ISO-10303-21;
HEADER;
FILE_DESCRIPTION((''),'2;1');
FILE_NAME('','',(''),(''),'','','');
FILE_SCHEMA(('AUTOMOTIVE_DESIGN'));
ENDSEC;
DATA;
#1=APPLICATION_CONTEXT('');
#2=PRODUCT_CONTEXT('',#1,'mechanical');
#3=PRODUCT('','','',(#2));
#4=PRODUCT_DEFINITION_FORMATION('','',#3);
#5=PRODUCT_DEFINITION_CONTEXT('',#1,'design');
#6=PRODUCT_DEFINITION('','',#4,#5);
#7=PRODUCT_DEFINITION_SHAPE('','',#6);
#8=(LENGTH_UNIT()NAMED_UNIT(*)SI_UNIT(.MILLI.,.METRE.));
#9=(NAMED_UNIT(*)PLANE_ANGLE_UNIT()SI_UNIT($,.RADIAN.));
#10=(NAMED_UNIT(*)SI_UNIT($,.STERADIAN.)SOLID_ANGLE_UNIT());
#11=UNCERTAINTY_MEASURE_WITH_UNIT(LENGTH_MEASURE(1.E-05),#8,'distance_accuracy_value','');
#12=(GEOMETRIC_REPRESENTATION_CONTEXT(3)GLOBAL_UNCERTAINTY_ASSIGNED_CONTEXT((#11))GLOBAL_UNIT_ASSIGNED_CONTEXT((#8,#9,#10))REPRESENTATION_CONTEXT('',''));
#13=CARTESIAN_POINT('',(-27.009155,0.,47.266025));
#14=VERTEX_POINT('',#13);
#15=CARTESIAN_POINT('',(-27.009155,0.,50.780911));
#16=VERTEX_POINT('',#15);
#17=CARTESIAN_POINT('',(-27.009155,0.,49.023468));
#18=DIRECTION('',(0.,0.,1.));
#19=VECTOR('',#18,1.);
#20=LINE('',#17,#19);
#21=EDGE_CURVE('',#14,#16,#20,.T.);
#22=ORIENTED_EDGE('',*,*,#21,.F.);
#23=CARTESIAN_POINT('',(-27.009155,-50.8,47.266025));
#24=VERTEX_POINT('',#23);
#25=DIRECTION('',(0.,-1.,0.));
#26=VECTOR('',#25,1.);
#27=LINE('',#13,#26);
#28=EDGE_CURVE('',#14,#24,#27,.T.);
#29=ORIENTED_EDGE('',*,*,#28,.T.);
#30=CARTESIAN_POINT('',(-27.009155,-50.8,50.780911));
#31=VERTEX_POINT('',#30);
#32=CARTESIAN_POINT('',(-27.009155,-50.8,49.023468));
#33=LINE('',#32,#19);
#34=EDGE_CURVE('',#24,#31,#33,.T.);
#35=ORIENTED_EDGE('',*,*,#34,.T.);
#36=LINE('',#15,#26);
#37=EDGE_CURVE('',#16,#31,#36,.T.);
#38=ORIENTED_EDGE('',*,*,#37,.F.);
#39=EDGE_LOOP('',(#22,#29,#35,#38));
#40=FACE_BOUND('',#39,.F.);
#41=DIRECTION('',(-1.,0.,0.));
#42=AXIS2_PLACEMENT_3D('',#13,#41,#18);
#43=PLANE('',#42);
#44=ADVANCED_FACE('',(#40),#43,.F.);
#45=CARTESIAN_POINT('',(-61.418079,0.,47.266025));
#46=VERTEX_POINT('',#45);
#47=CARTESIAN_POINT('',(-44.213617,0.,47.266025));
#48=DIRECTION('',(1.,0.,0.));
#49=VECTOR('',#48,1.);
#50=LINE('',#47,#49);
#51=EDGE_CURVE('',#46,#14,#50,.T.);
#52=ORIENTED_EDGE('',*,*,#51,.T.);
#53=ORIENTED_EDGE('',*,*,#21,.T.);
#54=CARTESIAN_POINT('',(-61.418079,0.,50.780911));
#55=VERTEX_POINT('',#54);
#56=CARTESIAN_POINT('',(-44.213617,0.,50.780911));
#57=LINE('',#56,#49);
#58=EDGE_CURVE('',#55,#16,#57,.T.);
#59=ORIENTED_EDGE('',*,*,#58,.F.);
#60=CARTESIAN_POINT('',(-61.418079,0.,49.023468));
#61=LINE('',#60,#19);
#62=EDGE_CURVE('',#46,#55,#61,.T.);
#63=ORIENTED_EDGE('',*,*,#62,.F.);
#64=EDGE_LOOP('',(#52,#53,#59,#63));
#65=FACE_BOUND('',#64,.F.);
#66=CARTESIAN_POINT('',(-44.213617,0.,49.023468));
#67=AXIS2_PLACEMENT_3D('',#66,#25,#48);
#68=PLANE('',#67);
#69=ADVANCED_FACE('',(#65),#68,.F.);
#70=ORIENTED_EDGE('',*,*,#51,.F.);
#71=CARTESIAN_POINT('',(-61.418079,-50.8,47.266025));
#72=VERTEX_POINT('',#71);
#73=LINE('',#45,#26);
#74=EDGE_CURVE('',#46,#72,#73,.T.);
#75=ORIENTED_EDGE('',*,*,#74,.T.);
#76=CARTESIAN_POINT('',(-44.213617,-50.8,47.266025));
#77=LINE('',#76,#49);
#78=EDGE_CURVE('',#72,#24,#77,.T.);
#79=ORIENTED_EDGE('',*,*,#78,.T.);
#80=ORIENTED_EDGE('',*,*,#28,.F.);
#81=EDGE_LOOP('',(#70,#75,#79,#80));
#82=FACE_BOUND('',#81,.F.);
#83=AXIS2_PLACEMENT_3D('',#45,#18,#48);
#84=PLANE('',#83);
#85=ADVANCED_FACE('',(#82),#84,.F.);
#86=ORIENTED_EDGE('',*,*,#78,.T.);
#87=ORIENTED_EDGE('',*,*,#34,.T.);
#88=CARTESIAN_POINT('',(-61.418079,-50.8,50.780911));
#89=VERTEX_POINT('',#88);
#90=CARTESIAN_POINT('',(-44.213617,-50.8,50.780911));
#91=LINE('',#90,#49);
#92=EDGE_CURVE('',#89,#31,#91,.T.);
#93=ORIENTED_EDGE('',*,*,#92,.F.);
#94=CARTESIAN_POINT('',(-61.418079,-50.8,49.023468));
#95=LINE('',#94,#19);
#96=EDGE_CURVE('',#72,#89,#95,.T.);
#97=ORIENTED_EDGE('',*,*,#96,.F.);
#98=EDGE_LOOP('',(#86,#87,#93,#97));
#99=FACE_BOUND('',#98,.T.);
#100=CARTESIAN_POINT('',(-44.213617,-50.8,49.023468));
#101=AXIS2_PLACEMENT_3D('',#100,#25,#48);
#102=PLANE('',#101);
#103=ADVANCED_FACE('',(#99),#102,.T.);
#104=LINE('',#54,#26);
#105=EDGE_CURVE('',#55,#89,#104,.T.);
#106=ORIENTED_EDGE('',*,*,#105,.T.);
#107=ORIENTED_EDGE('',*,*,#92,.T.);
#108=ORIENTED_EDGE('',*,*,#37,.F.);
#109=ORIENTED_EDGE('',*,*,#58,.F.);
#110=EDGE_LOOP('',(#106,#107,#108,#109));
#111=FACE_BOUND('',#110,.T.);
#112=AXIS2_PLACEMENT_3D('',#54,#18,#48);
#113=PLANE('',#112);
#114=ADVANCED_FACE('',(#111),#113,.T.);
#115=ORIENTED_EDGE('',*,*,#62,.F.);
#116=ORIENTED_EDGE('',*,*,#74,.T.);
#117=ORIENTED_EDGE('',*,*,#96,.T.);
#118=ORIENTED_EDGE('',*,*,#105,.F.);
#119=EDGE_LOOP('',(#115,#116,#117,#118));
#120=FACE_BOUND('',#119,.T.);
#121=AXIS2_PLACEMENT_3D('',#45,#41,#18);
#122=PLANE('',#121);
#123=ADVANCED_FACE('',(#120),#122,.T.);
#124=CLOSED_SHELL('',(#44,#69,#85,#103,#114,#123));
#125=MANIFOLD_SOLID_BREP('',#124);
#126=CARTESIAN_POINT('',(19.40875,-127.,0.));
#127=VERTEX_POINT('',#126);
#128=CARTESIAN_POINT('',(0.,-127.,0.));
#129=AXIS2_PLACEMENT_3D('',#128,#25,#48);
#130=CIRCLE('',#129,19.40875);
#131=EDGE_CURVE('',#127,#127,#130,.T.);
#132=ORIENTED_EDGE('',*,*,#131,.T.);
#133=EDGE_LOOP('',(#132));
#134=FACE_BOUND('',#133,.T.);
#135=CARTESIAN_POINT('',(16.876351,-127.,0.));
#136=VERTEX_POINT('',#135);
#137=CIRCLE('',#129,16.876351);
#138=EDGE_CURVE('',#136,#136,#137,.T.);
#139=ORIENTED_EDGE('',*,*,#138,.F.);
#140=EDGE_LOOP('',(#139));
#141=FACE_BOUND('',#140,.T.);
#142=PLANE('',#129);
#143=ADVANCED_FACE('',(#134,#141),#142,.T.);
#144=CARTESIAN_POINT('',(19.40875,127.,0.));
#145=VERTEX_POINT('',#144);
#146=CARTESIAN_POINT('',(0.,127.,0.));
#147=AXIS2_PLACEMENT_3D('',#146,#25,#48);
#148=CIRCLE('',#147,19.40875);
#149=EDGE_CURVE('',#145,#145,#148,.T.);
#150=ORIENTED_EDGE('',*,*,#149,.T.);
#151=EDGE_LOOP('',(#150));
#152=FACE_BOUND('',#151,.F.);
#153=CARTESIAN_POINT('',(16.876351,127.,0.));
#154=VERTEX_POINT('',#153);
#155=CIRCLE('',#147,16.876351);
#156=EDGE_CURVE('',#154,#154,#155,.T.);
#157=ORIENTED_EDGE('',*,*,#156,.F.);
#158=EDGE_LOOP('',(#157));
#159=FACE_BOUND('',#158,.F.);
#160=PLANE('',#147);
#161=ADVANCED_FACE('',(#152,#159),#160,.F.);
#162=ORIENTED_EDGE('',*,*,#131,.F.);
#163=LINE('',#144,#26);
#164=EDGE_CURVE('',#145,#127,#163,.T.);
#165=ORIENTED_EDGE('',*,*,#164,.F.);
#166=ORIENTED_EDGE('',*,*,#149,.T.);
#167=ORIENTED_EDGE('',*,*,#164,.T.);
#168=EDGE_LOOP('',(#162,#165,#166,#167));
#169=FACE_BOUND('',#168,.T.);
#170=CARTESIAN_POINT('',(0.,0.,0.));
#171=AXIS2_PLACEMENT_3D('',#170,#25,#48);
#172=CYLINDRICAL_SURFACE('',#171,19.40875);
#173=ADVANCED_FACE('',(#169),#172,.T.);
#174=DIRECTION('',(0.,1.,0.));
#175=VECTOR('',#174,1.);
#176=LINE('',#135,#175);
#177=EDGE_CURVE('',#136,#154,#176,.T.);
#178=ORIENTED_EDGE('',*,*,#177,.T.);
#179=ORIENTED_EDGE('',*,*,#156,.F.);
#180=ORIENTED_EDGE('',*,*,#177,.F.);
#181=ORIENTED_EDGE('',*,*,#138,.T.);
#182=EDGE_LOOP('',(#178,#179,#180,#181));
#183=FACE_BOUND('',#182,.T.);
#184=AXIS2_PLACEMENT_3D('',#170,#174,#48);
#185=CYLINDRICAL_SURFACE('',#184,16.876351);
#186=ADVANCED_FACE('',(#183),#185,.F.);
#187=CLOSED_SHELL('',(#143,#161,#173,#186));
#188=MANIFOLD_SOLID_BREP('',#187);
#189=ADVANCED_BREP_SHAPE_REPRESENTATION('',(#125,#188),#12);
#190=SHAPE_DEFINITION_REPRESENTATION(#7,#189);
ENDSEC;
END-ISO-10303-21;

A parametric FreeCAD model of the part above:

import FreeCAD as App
import Part
import Sketcher
from FreeCAD import Vector
Q = App.Units.Quantity


def add_polygon(sketch, points):
    """Adds a closed chain of lines whose ends are joined by coincident constraints."""
    first, n = sketch.GeometryCount, len(points)
    for a, b in zip(points, points[1:] + points[:1]):
        sketch.addGeometry(Part.LineSegment(App.Vector(*a, 0), App.Vector(*b, 0)), False)
    for i in range(n):
        sketch.addConstraint(Sketcher.Constraint("Coincident", first + i, 2, first + (i + 1) % n, 1))

doc = App.newDocument("Part")
body = doc.addObject("PartDesign::Body", "Body")

# Sketch on XZ plane
sketch1 = body.newObject("Sketcher::SketchObject", "Sketch")
sketch1.AttachmentSupport = (doc.getObject("XZ_Plane"), [""])
sketch1.MapMode = "FlatFace"
sketch1.addGeometry([
    Part.Circle(Vector(0, 0, 0), Vector(0, 0, 1), 19),
    Part.Circle(Vector(0, 0, 0), Vector(0, 0, 1), 17),
], False)
sketch1.addConstraint([
    Sketcher.Constraint("Coincident", 0, 3, -1, 1),
    Sketcher.Constraint("Coincident", 1, 3, -1, 1),
    Sketcher.Constraint("Diameter", 0, 38.8175),
    Sketcher.Constraint("Diameter", 1, 33.752702),
])
pad1 = body.newObject("PartDesign::Pad", "Pad")
pad1.Profile = sketch1
pad1.Length = Q("10 in")
pad1.Midplane = True
body2 = doc.addObject("PartDesign::Body", "Body001")

# Sketch on XZ plane
sketch2 = body2.newObject("Sketcher::SketchObject", "Sketch001")
sketch2.AttachmentSupport = (doc.getObject("XZ_Plane001"), [""])
sketch2.MapMode = "FlatFace"
add_polygon(sketch2, [(-61.4, 50.8), (-61.4, 47.3), (-27, 47.3), (-27, 50.8)])  # lines 0-3
sketch2.addConstraint([
    Sketcher.Constraint("Vertical", 0),
    Sketcher.Constraint("Horizontal", 1),
    Sketcher.Constraint("Vertical", 2),
    Sketcher.Constraint("Horizontal", 3),
    Sketcher.Constraint("DistanceX", 1, 1, 1, 2, 34.408923),
    Sketcher.Constraint("DistanceY", 0, 2, 0, 1, 3.514886),
    Sketcher.Constraint("DistanceX", 0, 2, -1, 1, 61.418079),
    Sketcher.Constraint("DistanceY", -1, 1, 2, 2, 50.780911),
])
pad2 = body2.newObject("PartDesign::Pad", "Pad001")
pad2.Profile = sketch2
pad2.Length = Q("2 in")

doc.recompute()
